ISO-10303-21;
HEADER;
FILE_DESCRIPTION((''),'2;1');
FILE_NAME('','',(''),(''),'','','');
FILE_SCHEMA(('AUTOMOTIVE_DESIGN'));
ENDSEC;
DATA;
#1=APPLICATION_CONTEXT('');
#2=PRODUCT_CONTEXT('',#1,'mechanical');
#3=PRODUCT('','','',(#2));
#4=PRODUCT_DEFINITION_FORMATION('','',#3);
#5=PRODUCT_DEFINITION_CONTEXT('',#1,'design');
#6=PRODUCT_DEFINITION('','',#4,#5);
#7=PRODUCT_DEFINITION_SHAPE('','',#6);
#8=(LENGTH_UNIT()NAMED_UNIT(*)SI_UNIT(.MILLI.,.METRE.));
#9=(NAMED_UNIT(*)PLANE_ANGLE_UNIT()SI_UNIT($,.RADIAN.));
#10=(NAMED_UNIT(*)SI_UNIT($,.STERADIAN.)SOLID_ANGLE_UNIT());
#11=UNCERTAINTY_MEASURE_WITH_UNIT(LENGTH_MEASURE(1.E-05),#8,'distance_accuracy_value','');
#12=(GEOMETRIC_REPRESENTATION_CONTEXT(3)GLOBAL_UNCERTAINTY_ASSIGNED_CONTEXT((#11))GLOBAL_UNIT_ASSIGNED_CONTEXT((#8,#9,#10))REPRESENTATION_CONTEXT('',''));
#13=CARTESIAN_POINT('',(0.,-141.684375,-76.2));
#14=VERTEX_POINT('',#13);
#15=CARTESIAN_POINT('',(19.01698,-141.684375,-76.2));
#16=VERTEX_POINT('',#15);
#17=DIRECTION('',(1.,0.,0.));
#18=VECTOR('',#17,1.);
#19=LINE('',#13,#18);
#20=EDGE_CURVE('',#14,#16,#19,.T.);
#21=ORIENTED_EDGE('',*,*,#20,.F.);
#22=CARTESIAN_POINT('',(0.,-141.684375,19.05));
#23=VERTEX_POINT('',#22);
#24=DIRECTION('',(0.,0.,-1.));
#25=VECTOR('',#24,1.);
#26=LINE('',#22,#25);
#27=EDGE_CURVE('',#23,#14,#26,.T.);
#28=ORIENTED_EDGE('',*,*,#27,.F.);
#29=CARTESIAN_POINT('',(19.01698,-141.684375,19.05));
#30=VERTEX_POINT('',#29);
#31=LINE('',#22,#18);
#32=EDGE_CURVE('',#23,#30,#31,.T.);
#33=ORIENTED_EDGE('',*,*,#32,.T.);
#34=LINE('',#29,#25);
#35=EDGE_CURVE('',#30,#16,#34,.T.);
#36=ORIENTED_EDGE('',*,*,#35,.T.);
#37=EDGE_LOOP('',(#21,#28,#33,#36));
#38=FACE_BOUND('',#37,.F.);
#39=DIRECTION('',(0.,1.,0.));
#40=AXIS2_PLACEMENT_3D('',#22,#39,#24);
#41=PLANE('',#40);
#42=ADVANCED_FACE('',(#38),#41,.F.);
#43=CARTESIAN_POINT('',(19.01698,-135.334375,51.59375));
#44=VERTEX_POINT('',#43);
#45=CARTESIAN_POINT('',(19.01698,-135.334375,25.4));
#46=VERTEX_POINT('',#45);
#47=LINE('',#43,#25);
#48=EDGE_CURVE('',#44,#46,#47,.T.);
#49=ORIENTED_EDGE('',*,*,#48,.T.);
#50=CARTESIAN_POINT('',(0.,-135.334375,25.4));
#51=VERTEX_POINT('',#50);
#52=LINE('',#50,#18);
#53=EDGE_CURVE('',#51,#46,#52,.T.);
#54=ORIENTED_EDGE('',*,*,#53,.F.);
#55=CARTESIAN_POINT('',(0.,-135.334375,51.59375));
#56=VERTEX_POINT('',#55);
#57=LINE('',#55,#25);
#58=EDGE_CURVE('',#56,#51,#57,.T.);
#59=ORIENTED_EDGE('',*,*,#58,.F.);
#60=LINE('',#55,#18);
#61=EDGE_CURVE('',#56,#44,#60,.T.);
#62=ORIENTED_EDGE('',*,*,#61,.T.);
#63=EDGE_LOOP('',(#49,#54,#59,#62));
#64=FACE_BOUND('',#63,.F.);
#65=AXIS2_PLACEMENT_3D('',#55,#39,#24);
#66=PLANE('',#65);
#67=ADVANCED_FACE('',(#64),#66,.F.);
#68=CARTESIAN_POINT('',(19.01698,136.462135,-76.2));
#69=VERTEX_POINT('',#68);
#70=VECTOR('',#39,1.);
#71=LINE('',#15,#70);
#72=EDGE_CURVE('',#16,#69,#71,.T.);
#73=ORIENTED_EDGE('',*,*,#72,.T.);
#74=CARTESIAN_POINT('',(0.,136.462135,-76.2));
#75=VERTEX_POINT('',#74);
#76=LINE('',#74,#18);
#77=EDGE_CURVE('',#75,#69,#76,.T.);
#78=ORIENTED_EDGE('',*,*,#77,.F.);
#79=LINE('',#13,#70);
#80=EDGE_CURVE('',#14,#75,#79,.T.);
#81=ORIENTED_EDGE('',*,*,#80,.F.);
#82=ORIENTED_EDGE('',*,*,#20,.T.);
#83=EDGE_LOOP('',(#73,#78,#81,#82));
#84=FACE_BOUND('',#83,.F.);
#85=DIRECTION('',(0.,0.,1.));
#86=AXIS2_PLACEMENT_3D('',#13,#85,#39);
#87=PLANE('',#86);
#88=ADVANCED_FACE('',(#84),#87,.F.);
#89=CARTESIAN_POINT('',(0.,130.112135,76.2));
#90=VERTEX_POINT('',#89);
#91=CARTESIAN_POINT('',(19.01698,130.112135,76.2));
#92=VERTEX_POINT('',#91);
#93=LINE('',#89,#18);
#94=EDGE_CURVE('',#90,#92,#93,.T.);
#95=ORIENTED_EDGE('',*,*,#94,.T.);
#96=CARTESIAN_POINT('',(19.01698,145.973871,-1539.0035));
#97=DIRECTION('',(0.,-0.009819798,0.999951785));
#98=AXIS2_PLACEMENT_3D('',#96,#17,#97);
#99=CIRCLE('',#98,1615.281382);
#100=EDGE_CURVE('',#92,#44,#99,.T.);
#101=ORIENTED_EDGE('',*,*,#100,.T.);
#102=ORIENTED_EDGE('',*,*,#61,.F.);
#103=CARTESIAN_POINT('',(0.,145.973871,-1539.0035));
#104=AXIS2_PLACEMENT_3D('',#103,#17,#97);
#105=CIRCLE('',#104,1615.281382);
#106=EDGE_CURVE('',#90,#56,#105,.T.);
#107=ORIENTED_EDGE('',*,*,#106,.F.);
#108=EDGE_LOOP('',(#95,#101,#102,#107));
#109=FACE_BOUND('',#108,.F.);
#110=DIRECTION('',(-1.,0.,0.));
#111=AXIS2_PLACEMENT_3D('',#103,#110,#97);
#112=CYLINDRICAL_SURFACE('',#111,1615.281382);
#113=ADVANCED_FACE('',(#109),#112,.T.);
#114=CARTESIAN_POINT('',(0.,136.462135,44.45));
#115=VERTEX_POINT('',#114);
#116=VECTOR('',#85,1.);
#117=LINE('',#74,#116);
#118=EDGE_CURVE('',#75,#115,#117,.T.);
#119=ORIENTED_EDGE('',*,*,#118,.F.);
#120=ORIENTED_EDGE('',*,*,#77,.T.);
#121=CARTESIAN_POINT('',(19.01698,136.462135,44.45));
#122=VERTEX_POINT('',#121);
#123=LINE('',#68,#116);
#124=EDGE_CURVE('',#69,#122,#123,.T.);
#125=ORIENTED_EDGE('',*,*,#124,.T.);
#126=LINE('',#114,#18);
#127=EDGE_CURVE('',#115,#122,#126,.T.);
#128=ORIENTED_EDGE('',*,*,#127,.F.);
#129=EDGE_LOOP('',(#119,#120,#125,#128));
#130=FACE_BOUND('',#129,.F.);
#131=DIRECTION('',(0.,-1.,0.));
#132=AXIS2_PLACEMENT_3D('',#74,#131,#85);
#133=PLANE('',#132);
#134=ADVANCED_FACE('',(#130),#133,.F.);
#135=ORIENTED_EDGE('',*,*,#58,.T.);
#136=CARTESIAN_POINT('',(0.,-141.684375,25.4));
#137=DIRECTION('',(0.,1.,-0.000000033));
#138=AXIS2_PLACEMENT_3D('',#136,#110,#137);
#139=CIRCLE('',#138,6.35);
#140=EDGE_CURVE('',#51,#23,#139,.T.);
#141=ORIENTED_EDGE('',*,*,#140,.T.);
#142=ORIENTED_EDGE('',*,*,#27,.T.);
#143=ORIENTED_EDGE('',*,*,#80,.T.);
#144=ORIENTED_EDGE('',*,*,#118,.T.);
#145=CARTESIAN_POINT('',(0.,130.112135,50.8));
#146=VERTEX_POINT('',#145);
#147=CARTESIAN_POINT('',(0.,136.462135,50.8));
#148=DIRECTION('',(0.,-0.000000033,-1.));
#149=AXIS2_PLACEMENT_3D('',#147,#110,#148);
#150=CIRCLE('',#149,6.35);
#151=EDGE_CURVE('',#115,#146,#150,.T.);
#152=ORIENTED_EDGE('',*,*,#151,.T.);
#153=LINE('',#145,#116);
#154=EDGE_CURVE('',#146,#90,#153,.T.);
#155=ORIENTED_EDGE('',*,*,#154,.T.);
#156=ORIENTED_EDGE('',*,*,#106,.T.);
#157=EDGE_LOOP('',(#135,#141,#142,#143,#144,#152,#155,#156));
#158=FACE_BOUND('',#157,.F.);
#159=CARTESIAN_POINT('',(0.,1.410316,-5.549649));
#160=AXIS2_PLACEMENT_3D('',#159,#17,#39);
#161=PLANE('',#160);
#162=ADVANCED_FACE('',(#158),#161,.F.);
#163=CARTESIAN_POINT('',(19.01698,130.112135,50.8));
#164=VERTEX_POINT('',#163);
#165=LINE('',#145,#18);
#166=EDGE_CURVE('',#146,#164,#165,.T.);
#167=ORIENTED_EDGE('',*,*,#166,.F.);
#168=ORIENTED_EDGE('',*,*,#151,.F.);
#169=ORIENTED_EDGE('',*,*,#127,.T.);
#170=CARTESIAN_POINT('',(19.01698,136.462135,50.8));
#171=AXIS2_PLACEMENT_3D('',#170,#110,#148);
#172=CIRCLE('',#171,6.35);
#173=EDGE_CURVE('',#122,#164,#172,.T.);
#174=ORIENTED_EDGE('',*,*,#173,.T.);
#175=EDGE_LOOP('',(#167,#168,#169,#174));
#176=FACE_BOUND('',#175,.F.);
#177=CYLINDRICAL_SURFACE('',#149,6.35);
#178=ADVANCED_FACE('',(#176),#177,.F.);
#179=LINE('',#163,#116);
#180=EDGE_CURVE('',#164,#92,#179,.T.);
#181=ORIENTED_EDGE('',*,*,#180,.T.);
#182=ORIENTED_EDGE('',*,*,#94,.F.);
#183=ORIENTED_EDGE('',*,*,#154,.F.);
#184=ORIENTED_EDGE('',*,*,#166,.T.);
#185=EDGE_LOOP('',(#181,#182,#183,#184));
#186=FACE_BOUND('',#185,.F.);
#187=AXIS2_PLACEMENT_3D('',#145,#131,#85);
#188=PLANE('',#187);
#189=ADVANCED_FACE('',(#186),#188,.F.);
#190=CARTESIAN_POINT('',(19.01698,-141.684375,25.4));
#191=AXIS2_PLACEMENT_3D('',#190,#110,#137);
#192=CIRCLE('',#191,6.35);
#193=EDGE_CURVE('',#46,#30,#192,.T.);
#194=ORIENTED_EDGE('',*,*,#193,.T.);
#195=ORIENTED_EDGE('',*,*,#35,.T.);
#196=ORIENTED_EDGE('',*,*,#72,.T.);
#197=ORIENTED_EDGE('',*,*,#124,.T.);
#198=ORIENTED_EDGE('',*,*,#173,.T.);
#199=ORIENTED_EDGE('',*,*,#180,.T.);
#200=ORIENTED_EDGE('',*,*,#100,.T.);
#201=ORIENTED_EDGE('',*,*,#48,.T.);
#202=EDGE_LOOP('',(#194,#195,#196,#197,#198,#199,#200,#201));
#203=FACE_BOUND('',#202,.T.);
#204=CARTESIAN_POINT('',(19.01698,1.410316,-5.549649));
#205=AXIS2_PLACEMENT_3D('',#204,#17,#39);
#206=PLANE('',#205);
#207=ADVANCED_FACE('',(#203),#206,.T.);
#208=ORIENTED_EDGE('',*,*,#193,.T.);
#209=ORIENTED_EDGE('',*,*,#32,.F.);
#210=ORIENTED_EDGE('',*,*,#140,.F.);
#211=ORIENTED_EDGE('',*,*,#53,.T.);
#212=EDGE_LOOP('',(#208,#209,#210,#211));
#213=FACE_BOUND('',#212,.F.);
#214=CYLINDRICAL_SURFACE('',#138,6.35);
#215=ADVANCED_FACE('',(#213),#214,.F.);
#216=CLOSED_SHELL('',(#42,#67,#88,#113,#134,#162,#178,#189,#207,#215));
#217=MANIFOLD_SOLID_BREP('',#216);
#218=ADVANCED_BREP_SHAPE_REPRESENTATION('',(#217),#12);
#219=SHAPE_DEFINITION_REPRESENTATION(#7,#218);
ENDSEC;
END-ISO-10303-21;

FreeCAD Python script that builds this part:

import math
import FreeCAD as App
import Part
import Sketcher

V = App.Vector
Q = App.Units.Quantity

doc = App.newDocument("Part")
body = doc.addObject("PartDesign::Body", "Body")

# Sketch on YZ plane
sketch1 = body.newObject("Sketcher::SketchObject", "Sketch")
sketch1.AttachmentSupport = (doc.getObject("YZ_Plane"), [""])
sketch1.MapMode = "FlatFace"
sketch1.addGeometry([
    Part.LineSegment(V(-142, -76, 0), V(136, -76, 0)),  # 0
    Part.LineSegment(V(136, -76, 0), V(136, 44, 0)),  # 1
    Part.ArcOfCircle(Part.Circle(V(136, 51, 0), V(0, 0, 1), 6), math.radians(-180), math.radians(-90)),  # 2
    Part.LineSegment(V(130, 51, 0), V(130, 76, 0)),  # 3
    Part.ArcOfCircle(Part.Circle(V(146, -1539, 0), V(0, 0, 1), 1615), math.radians(90.56), math.radians(100.03)),  # 4
    Part.LineSegment(V(-135, 52, 0), V(-135, 25, 0)),  # 5
    Part.ArcOfCircle(Part.Circle(V(-142, 25, 0), V(0, 0, 1), 6), math.radians(-90), math.radians(0)),  # 6
    Part.LineSegment(V(-142, 19, 0), V(-142, -76, 0)),  # 7
], False)
sketch1.addConstraint([
    Sketcher.Constraint("Coincident", 0, 2, 1, 1),
    Sketcher.Constraint("Coincident", 1, 2, 2, 2),
    Sketcher.Constraint("Tangent", 2, 1, 3, 1),
    Sketcher.Constraint("Coincident", 3, 2, 4, 1),
    Sketcher.Constraint("Coincident", 4, 2, 5, 1),
    Sketcher.Constraint("Tangent", 5, 2, 6, 2),
    Sketcher.Constraint("Coincident", 6, 1, 7, 1),
    Sketcher.Constraint("Coincident", 7, 2, 0, 1),
    Sketcher.Constraint("Horizontal", 0),
    Sketcher.Constraint("Vertical", 1),
    Sketcher.Constraint("Vertical", 3),
    Sketcher.Constraint("Vertical", 5),
    Sketcher.Constraint("Vertical", 7),
    Sketcher.Constraint("Equal", 2, 6),
    Sketcher.Constraint("Vertical", 2, 3, 0, 2),
    Sketcher.Constraint("DistanceY", 3, 1, 3, 2, Q("1 in")),
    Sketcher.Constraint("Radius", 2, Q("0.25 in")),
    Sketcher.Constraint("DistanceY", -1, 1, 2, 3, Q("2 in")),
    Sketcher.Constraint("DistanceY", -1, 1, 6, 3, Q("1 in")),
    Sketcher.Constraint("DistanceY", 0, 2, -1, 1, Q("3 in")),
    Sketcher.Constraint("DistanceY", 5, 2, 5, 1, Q("1.03125 in")),
    Sketcher.Constraint("DistanceX", 6, 1, 5, 2, Q("0.25 in")),
    Sketcher.Constraint("DistanceX", 6, 3, -1, 1, Q("5.578125 in")),
    Sketcher.Constraint("Radius", 4, Q("1615.281382 mm")),
    Sketcher.Constraint("DistanceX", 0, 1, 0, 2, Q("278.14651 mm")),
])
pad1 = body.newObject("PartDesign::Pad", "Pad")
pad1.Profile = sketch1
pad1.Length = Q("0.7487 in")

doc.recompute()
